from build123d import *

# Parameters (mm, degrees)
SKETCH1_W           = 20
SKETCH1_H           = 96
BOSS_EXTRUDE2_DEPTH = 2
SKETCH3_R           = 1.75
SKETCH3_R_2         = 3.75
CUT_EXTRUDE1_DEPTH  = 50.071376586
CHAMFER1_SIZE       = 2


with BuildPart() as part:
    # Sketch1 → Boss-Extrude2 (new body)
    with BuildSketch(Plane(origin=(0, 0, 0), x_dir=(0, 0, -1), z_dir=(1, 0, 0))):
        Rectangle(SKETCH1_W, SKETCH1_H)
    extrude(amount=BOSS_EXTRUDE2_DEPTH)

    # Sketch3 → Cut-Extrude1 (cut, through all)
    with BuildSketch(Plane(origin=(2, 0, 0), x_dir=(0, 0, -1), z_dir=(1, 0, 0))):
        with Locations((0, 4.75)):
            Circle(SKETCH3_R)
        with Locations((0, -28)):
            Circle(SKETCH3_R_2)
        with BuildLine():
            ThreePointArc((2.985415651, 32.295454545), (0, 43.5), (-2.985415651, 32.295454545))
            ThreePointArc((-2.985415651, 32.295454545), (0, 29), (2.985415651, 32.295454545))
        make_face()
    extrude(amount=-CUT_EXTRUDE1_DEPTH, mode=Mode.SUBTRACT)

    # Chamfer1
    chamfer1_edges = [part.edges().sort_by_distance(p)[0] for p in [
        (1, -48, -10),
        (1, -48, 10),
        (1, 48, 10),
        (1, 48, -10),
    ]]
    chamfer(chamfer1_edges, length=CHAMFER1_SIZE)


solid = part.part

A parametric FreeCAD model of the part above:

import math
import FreeCAD as App
import Part
import Sketcher

V = App.Vector
Q = App.Units.Quantity


def edges_at(feature, points):
    """Names of the edges that pass closest to the given points."""
    edges = feature.Shape.Edges
    near = lambda p: min(range(len(edges)), key=lambda i: edges[i].distToShape(Part.Vertex(*p))[0])
    return sorted({f"Edge{near(p) + 1}" for p in points})

doc = App.newDocument("Part")
body = doc.addObject("PartDesign::Body", "Body")

sketch1 = doc.addObject("Sketcher::SketchObject", "Sketch")
body.addObject(sketch1)
sketch1.AttachmentSupport = (doc.YZ_Plane, [""])
sketch1.MapMode = "FlatFace"
sketch1.addGeometry(Part.LineSegment(V(48, 10, 0), V(-48, 10, 0)), False)
sketch1.addGeometry(Part.LineSegment(V(-48, 10, 0), V(-48, -10, 0)), False)
sketch1.addGeometry(Part.LineSegment(V(-48, -10, 0), V(48, -10, 0)), False)
sketch1.addGeometry(Part.LineSegment(V(48, -10, 0), V(48, 10, 0)), False)
sketch1.addConstraint(Sketcher.Constraint("Coincident", 0, 2, 1, 1))
sketch1.addConstraint(Sketcher.Constraint("Coincident", 1, 2, 2, 1))
sketch1.addConstraint(Sketcher.Constraint("Coincident", 2, 2, 3, 1))
sketch1.addConstraint(Sketcher.Constraint("Coincident", 3, 2, 0, 1))
sketch1.addConstraint(Sketcher.Constraint("Horizontal", 0))
sketch1.addConstraint(Sketcher.Constraint("Vertical", 1))
sketch1.addConstraint(Sketcher.Constraint("Horizontal", 2))
sketch1.addConstraint(Sketcher.Constraint("Vertical", 3))
sketch1.addConstraint(Sketcher.Constraint("Symmetric", 0, 2, 2, 2, -1, 1))
sketch1.addConstraint(Sketcher.Constraint("DistanceX", 0, 2, 0, 1, Q("96 mm")))
sketch1.addConstraint(Sketcher.Constraint("DistanceY", 1, 2, 1, 1, Q("20 mm")))
pad1 = doc.addObject("PartDesign::Pad", "Pad")
body.addObject(pad1)
pad1.Profile = sketch1
pad1.Length = 2

sketch2 = doc.addObject("Sketcher::SketchObject", "Sketch001")
body.addObject(sketch2)
sketch2.AttachmentSupport = (doc.YZ_Plane, [""])
sketch2.MapMode = "FlatFace"
sketch2.AttachmentOffset = App.Placement(V(0, 0, 2), App.Rotation())
sketch2.addGeometry(Part.Circle(V(4.75, 0, 0), V(0, 0, 1), 1.75), False)
sketch2.addGeometry(Part.Circle(V(-28, 0, 0), V(0, 0, 1), 3.75), False)
sketch2.addGeometry(Part.ArcOfCircle(Part.Circle(V(37.5, 0, 0), V(0, 0, 1), 6), math.radians(-150.160686), math.radians(150.160686)), False)
sketch2.addGeometry(Part.ArcOfCircle(Part.Circle(V(32, 0, 0), V(0, 0, 1), 3), math.radians(84.348072), math.radians(275.651928)), False)
sketch2.addConstraint(Sketcher.Constraint("Coincident", 2, 1, 3, 2))
sketch2.addConstraint(Sketcher.Constraint("Coincident", 3, 1, 2, 2))
sketch2.addConstraint(Sketcher.Constraint("Symmetric", 2, 1, 3, 1, -1))
sketch2.addConstraint(Sketcher.Constraint("PointOnObject", 0, 3, -1))
sketch2.addConstraint(Sketcher.Constraint("PointOnObject", 1, 3, -1))
sketch2.addConstraint(Sketcher.Constraint("Radius", 2, Q("6 mm")))
sketch2.addConstraint(Sketcher.Constraint("Radius", 3, Q("3 mm")))
sketch2.addConstraint(Sketcher.Constraint("Diameter", 0, Q("3.5 mm")))
sketch2.addConstraint(Sketcher.Constraint("Diameter", 1, Q("7.5 mm")))
sketch2.addConstraint(Sketcher.Constraint("DistanceX", 1, 3, -1, 1, Q("28 mm")))
sketch2.addConstraint(Sketcher.Constraint("DistanceX", -1, 1, 3, 3, Q("32 mm")))
sketch2.addConstraint(Sketcher.Constraint("DistanceX", -1, 1, 2, 3, Q("37.5 mm")))
sketch2.addConstraint(Sketcher.Constraint("DistanceX", -1, 1, 0, 3, Q("4.75 mm")))
pocket1 = doc.addObject("PartDesign::Pocket", "Pocket")
body.addObject(pocket1)
pocket1.Profile = sketch2
pocket1.Type = "ThroughAll"
doc.recompute()

chamfer = doc.addObject("PartDesign::Chamfer", "Chamfer")
body.addObject(chamfer)
chamfer.Base = (pocket1, edges_at(pocket1, [
    (1, -48, -10),
    (1, -48, 10),
    (1, 48, 10),
    (1, 48, -10),
]))
chamfer.Size = 2

doc.recompute()
